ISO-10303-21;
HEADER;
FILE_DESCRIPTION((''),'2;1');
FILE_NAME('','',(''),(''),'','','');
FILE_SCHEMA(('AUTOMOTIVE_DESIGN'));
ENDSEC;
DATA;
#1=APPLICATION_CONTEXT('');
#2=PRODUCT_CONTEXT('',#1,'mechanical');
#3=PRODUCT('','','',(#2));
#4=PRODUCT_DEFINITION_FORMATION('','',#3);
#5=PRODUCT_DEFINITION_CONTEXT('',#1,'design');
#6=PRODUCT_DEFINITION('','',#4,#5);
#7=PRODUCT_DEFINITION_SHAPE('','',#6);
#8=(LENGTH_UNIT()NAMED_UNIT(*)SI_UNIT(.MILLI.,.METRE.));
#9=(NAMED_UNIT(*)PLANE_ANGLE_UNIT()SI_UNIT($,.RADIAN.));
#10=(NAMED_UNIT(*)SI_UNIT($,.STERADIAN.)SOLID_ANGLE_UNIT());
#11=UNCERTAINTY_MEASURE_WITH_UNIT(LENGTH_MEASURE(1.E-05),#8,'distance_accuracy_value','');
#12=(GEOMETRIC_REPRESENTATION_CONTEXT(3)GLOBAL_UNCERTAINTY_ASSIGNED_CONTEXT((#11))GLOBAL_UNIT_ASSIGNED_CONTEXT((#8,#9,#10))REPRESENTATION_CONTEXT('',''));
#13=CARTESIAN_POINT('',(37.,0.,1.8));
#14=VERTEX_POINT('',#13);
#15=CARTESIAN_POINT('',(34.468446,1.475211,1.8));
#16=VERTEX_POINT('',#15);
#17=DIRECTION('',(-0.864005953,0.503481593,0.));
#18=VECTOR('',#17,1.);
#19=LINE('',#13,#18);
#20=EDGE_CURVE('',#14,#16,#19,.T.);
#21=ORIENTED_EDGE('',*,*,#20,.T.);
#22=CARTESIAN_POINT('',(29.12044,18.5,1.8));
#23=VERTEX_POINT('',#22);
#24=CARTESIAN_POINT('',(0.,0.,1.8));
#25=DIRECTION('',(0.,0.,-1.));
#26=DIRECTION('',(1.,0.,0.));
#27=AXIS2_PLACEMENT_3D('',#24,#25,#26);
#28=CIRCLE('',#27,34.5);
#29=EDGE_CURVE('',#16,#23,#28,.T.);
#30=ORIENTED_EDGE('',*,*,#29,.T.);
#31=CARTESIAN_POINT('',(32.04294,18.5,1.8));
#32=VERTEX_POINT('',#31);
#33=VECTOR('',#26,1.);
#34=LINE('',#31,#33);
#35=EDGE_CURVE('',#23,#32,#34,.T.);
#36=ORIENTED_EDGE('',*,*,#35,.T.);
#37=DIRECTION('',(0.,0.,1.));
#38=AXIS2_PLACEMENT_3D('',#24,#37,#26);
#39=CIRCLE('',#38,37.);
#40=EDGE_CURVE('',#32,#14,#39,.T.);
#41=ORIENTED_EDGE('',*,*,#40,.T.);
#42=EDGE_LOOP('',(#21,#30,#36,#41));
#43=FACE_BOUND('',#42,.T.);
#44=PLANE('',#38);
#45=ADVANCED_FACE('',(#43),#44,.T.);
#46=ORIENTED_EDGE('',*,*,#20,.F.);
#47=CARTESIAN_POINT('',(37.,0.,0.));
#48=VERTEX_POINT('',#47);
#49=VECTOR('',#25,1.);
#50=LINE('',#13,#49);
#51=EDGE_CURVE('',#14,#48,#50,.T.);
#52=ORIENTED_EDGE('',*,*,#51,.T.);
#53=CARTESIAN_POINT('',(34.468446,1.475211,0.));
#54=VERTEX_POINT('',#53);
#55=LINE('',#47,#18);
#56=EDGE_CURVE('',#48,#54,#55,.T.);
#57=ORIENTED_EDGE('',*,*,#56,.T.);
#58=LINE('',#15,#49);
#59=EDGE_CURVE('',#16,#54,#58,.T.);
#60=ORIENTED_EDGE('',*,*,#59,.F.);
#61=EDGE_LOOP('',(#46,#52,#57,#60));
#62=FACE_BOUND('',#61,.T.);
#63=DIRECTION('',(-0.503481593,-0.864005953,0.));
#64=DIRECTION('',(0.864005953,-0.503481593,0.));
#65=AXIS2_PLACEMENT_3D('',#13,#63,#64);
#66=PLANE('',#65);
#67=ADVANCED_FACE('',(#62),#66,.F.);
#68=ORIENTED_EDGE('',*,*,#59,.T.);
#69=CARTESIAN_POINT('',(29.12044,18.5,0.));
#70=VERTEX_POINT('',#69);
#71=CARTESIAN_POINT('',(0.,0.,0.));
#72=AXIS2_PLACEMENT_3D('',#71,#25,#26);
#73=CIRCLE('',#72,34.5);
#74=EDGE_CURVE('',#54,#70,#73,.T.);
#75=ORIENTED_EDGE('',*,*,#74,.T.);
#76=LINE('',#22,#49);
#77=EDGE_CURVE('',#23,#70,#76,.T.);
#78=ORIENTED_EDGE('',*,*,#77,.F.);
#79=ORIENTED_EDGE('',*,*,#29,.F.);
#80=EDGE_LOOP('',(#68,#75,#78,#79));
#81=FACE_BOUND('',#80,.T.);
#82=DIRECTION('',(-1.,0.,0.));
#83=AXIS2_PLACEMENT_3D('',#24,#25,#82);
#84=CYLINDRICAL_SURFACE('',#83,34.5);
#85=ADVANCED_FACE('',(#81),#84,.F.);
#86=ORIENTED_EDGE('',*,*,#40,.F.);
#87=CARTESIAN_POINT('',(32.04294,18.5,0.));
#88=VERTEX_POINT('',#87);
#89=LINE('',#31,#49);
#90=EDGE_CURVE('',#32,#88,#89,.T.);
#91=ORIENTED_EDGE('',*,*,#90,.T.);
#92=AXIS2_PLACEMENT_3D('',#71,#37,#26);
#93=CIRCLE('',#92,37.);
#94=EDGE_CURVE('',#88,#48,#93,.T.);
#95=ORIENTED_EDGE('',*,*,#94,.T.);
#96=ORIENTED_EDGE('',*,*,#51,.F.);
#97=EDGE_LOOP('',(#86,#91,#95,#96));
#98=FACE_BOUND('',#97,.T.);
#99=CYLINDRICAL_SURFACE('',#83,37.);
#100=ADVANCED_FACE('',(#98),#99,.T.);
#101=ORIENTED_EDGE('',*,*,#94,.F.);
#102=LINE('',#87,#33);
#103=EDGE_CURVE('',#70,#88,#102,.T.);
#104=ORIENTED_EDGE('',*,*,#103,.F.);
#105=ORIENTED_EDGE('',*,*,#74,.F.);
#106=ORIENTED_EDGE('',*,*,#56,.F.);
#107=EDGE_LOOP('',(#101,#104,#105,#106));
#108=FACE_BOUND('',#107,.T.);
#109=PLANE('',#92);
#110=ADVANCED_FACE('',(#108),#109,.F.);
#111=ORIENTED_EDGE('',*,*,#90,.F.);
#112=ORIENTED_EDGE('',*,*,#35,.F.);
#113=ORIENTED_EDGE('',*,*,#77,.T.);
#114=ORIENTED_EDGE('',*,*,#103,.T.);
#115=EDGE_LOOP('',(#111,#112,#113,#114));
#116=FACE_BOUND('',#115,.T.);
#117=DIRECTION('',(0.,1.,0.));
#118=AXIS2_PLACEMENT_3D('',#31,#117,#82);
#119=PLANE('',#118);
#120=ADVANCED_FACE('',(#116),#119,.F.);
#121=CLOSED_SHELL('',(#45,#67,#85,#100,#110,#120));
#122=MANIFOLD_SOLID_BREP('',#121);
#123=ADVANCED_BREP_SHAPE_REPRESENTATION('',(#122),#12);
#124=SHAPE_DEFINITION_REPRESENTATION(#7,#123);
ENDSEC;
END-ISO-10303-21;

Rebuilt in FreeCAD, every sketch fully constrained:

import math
import FreeCAD as App
import Part
import Sketcher
Q = App.Units.Quantity

doc = App.newDocument("Part")
params = doc.addObject("Spreadsheet::Sheet", "Params")
for row, (alias, value) in enumerate([
    ("sketch1_radius", "37 mm"),
    ("sketch1_radius2", "34.5 mm"),
    ("pad1_length", "1.8 mm"),
], start=1):
    params.set(f"A{row}", alias)
    params.set(f"B{row}", "=" + value)
    params.setAlias(f"B{row}", alias)

body = doc.addObject("PartDesign::Body", "Body")

sketch1 = body.newObject("Sketcher::SketchObject", "Sketch")
sketch1.AttachmentSupport = (doc.getObject("XY_Plane"), [""])
sketch1.MapMode = "FlatFace"
sketch1.addGeometry([
    Part.LineSegment(App.Vector(37, 0, 0), App.Vector(34.5, 1.5, 0)),
    Part.ArcOfCircle(Part.Circle(App.Vector(0, 0, 0), App.Vector(0, 0, 1), 34.5), math.radians(32), math.radians(362)),
    Part.LineSegment(App.Vector(29.1, 18.5, 0), App.Vector(32, 18.5, 0)),
    Part.ArcOfCircle(Part.Circle(App.Vector(0, 0, 0), App.Vector(0, 0, 1), 37), math.radians(30), math.radians(360)),
], False)
sketch1.addConstraint([
    Sketcher.Constraint("Coincident", 0, 2, 1, 2),
    Sketcher.Constraint("Coincident", 1, 1, 2, 1),
    Sketcher.Constraint("Coincident", 2, 2, 3, 1),
    Sketcher.Constraint("Coincident", 3, 2, 0, 1),
    Sketcher.Constraint("Horizontal", 2),
    Sketcher.Constraint("Coincident", 1, 3, -1, 1),
    Sketcher.Constraint("Coincident", 3, 3, -1, 1),
    Sketcher.Constraint("PointOnObject", 3, 2, -1),
    Sketcher.Constraint("Radius", 3, Q("37 mm")),
    Sketcher.Constraint("Radius", 1, Q("34.5 mm")),
    Sketcher.Constraint("DistanceY", -1, 1, 1, 1, Q("18.5 mm")),
    Sketcher.Constraint("Distance", 0, Q("2.930019 mm")),
])
sketch1.setExpression("Constraints[8]", "Params.sketch1_radius")
sketch1.setExpression("Constraints[9]", "Params.sketch1_radius2")
pad1 = body.newObject("PartDesign::Pad", "Pad")
pad1.Profile = sketch1
pad1.setExpression("Length", "Params.pad1_length")

doc.recompute()
